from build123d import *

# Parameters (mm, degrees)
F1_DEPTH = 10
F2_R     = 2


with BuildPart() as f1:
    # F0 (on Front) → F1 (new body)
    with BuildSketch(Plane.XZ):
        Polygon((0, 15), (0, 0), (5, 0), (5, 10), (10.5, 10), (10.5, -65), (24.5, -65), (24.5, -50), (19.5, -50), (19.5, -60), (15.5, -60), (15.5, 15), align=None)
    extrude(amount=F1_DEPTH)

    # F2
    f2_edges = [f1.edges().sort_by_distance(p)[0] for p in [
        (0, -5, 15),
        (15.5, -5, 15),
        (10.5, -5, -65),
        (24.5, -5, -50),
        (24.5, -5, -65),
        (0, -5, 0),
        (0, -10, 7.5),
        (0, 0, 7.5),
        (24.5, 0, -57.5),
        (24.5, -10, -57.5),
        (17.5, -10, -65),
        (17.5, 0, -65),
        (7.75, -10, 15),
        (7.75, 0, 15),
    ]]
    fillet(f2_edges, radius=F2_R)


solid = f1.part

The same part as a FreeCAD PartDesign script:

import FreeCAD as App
import Part
import Sketcher
from FreeCAD import Vector


def edges_at(feature, points):
    """Names of the edges that pass closest to the given points."""
    edges = feature.Shape.Edges
    near = lambda p: min(range(len(edges)), key=lambda i: edges[i].distToShape(Part.Vertex(*p))[0])
    return sorted({f"Edge{near(p) + 1}" for p in points})

doc = App.newDocument("Part")
body = doc.addObject("PartDesign::Body", "Body")

sketch1 = body.newObject("Sketcher::SketchObject", "Sketch")
sketch1.AttachmentSupport = (doc.getObject("XZ_Plane"), [""])
sketch1.MapMode = "FlatFace"
sketch1.addGeometry(Part.LineSegment(Vector(0, 15, 0), Vector(0, 0, 0)), False)
sketch1.addGeometry(Part.LineSegment(Vector(0, 0, 0), Vector(5, 0, 0)), False)
sketch1.addGeometry(Part.LineSegment(Vector(5, 0, 0), Vector(5, 10, 0)), False)
sketch1.addGeometry(Part.LineSegment(Vector(5, 10, 0), Vector(10.5, 10, 0)), False)
sketch1.addGeometry(Part.LineSegment(Vector(10.5, 10, 0), Vector(10.5, -65, 0)), False)
sketch1.addGeometry(Part.LineSegment(Vector(10.5, -65, 0), Vector(24.5, -65, 0)), False)
sketch1.addGeometry(Part.LineSegment(Vector(24.5, -65, 0), Vector(24.5, -50, 0)), False)
sketch1.addGeometry(Part.LineSegment(Vector(24.5, -50, 0), Vector(19.5, -50, 0)), False)
sketch1.addGeometry(Part.LineSegment(Vector(19.5, -50, 0), Vector(19.5, -60, 0)), False)
sketch1.addGeometry(Part.LineSegment(Vector(19.5, -60, 0), Vector(15.5, -60, 0)), False)
sketch1.addGeometry(Part.LineSegment(Vector(15.5, -60, 0), Vector(15.5, 15, 0)), False)
sketch1.addGeometry(Part.LineSegment(Vector(15.5, 15, 0), Vector(0, 15, 0)), False)
sketch1.addConstraint(Sketcher.Constraint("Coincident", 0, 2, 1, 1))
sketch1.addConstraint(Sketcher.Constraint("Coincident", 1, 2, 2, 1))
sketch1.addConstraint(Sketcher.Constraint("Coincident", 2, 2, 3, 1))
sketch1.addConstraint(Sketcher.Constraint("Coincident", 3, 2, 4, 1))
sketch1.addConstraint(Sketcher.Constraint("Coincident", 4, 2, 5, 1))
sketch1.addConstraint(Sketcher.Constraint("Coincident", 5, 2, 6, 1))
sketch1.addConstraint(Sketcher.Constraint("Coincident", 6, 2, 7, 1))
sketch1.addConstraint(Sketcher.Constraint("Coincident", 7, 2, 8, 1))
sketch1.addConstraint(Sketcher.Constraint("Coincident", 8, 2, 9, 1))
sketch1.addConstraint(Sketcher.Constraint("Coincident", 9, 2, 10, 1))
sketch1.addConstraint(Sketcher.Constraint("Coincident", 10, 2, 11, 1))
sketch1.addConstraint(Sketcher.Constraint("Coincident", 11, 2, 0, 1))
sketch1.addConstraint(Sketcher.Constraint("Vertical", 0))
sketch1.addConstraint(Sketcher.Constraint("Horizontal", 1))
sketch1.addConstraint(Sketcher.Constraint("Vertical", 2))
sketch1.addConstraint(Sketcher.Constraint("Horizontal", 3))
sketch1.addConstraint(Sketcher.Constraint("Vertical", 4))
sketch1.addConstraint(Sketcher.Constraint("Horizontal", 5))
sketch1.addConstraint(Sketcher.Constraint("Vertical", 6))
sketch1.addConstraint(Sketcher.Constraint("Horizontal", 7))
sketch1.addConstraint(Sketcher.Constraint("Vertical", 8))
sketch1.addConstraint(Sketcher.Constraint("Horizontal", 9))
sketch1.addConstraint(Sketcher.Constraint("Vertical", 10))
sketch1.addConstraint(Sketcher.Constraint("Horizontal", 11))
sketch1.addConstraint(Sketcher.Constraint("Coincident", 0, 2, -1, 1))
sketch1.addConstraint(Sketcher.Constraint("Equal", 1, 7))
sketch1.addConstraint(Sketcher.Constraint("Equal", 0, 6))
sketch1.addConstraint(Sketcher.Constraint("Equal", 2, 8))
sketch1.addConstraint(Sketcher.Constraint("DistanceX", 1, 1, 1, 2, 5.0))
sketch1.addConstraint(Sketcher.Constraint("DistanceX", 5, 1, 5, 2, 14.0))
sketch1.addConstraint(Sketcher.Constraint("DistanceX", 9, 2, 9, 1, 4.0))
sketch1.addConstraint(Sketcher.Constraint("DistanceY", 0, 2, 0, 1, 15.0))
sketch1.addConstraint(Sketcher.Constraint("DistanceY", 2, 1, 2, 2, 10.0))
sketch1.addConstraint(Sketcher.Constraint("DistanceY", 4, 2, 4, 1, 75.0))
sketch1.addConstraint(Sketcher.Constraint("DistanceX", 3, 1, 3, 2, 5.5))
pad1 = body.newObject("PartDesign::Pad", "Pad")
pad1.Profile = sketch1
pad1.Length = 10
doc.recompute()

fillet = body.newObject("PartDesign::Fillet", "Fillet")
fillet.Base = (pad1, edges_at(pad1, [
    (0, -5, 15),
    (15.5, -5, 15),
    (10.5, -5, -65),
    (24.5, -5, -50),
    (24.5, -5, -65),
    (0, -5, 0),
    (0, -10, 7.5),
    (0, 0, 7.5),
    (24.5, 0, -57.5),
    (24.5, -10, -57.5),
    (17.5, -10, -65),
    (17.5, 0, -65),
    (7.75, -10, 15),
    (7.75, 0, 15),
]))
fillet.Radius = 2

doc.recompute()
